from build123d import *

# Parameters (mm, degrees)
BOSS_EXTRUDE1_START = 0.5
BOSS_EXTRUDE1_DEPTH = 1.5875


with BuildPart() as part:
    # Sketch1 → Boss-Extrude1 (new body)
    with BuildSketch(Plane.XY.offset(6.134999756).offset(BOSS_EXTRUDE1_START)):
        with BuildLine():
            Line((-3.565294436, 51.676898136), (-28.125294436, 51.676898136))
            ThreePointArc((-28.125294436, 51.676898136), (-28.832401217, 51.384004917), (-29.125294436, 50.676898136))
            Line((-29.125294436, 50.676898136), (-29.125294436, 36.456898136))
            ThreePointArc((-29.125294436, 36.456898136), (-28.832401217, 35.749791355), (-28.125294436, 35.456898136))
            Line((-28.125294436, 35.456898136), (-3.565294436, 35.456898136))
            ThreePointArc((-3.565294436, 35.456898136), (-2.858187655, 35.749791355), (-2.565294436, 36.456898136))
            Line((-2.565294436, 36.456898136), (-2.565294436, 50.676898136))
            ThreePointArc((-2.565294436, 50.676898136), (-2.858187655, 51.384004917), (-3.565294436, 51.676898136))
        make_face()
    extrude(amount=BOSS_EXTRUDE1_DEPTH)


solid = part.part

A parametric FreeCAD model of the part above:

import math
import FreeCAD as App
import Part
import Sketcher

doc = App.newDocument("Part")
body = doc.addObject("PartDesign::Body", "Body")

sketch1 = body.newObject("Sketcher::SketchObject", "Sketch")
sketch1.AttachmentSupport = (doc.getObject("XY_Plane"), [""])
sketch1.MapMode = "FlatFace"
sketch1.AttachmentOffset = App.Placement(App.Vector(0, 0, 6.635), App.Rotation())
sketch1.addGeometry(Part.LineSegment(App.Vector(-3.6, 51.7, 0), App.Vector(-28.1, 51.7, 0)), False)
sketch1.addGeometry(Part.ArcOfCircle(Part.Circle(App.Vector(-28.1, 50.7, 0), App.Vector(0, 0, 1), 1), math.radians(90), math.radians(180)), False)
sketch1.addGeometry(Part.LineSegment(App.Vector(-29.1, 50.7, 0), App.Vector(-29.1, 36.5, 0)), False)
sketch1.addGeometry(Part.ArcOfCircle(Part.Circle(App.Vector(-28.1, 36.5, 0), App.Vector(0, 0, 1), 1), math.radians(-180), math.radians(-90)), False)
sketch1.addGeometry(Part.LineSegment(App.Vector(-28.1, 35.5, 0), App.Vector(-3.6, 35.5, 0)), False)
sketch1.addGeometry(Part.ArcOfCircle(Part.Circle(App.Vector(-3.6, 36.5, 0), App.Vector(0, 0, 1), 1), math.radians(-90), math.radians(0)), False)
sketch1.addGeometry(Part.LineSegment(App.Vector(-2.6, 36.5, 0), App.Vector(-2.6, 50.7, 0)), False)
sketch1.addGeometry(Part.ArcOfCircle(Part.Circle(App.Vector(-3.6, 50.7, 0), App.Vector(0, 0, 1), 1), math.radians(0), math.radians(90)), False)
sketch1.addConstraint(Sketcher.Constraint("Tangent", 0, 2, 1, 1))
sketch1.addConstraint(Sketcher.Constraint("Tangent", 1, 2, 2, 1))
sketch1.addConstraint(Sketcher.Constraint("Tangent", 2, 2, 3, 1))
sketch1.addConstraint(Sketcher.Constraint("Tangent", 3, 2, 4, 1))
sketch1.addConstraint(Sketcher.Constraint("Tangent", 4, 2, 5, 1))
sketch1.addConstraint(Sketcher.Constraint("Tangent", 5, 2, 6, 1))
sketch1.addConstraint(Sketcher.Constraint("Tangent", 6, 2, 7, 1))
sketch1.addConstraint(Sketcher.Constraint("Tangent", 7, 2, 0, 1))
sketch1.addConstraint(Sketcher.Constraint("Horizontal", 0))
sketch1.addConstraint(Sketcher.Constraint("Vertical", 2))
sketch1.addConstraint(Sketcher.Constraint("Horizontal", 4))
sketch1.addConstraint(Sketcher.Constraint("Vertical", 6))
sketch1.addConstraint(Sketcher.Constraint("Equal", 1, 3))
sketch1.addConstraint(Sketcher.Constraint("Equal", 3, 5))
sketch1.addConstraint(Sketcher.Constraint("Equal", 5, 7))
sketch1.addConstraint(Sketcher.Constraint("Radius", 1, 1.0))
sketch1.addConstraint(Sketcher.Constraint("DistanceX", 0, 2, 0, 1, 24.56))
sketch1.addConstraint(Sketcher.Constraint("DistanceY", 2, 2, 2, 1, 14.22))
sketch1.addConstraint(Sketcher.Constraint("DistanceY", -1, 1, 1, 3, 50.676898))
sketch1.addConstraint(Sketcher.Constraint("DistanceX", 1, 3, -1, 1, 28.125294))
pad1 = body.newObject("PartDesign::Pad", "Pad")
pad1.Profile = sketch1
pad1.Length = 1.5875

doc.recompute()
